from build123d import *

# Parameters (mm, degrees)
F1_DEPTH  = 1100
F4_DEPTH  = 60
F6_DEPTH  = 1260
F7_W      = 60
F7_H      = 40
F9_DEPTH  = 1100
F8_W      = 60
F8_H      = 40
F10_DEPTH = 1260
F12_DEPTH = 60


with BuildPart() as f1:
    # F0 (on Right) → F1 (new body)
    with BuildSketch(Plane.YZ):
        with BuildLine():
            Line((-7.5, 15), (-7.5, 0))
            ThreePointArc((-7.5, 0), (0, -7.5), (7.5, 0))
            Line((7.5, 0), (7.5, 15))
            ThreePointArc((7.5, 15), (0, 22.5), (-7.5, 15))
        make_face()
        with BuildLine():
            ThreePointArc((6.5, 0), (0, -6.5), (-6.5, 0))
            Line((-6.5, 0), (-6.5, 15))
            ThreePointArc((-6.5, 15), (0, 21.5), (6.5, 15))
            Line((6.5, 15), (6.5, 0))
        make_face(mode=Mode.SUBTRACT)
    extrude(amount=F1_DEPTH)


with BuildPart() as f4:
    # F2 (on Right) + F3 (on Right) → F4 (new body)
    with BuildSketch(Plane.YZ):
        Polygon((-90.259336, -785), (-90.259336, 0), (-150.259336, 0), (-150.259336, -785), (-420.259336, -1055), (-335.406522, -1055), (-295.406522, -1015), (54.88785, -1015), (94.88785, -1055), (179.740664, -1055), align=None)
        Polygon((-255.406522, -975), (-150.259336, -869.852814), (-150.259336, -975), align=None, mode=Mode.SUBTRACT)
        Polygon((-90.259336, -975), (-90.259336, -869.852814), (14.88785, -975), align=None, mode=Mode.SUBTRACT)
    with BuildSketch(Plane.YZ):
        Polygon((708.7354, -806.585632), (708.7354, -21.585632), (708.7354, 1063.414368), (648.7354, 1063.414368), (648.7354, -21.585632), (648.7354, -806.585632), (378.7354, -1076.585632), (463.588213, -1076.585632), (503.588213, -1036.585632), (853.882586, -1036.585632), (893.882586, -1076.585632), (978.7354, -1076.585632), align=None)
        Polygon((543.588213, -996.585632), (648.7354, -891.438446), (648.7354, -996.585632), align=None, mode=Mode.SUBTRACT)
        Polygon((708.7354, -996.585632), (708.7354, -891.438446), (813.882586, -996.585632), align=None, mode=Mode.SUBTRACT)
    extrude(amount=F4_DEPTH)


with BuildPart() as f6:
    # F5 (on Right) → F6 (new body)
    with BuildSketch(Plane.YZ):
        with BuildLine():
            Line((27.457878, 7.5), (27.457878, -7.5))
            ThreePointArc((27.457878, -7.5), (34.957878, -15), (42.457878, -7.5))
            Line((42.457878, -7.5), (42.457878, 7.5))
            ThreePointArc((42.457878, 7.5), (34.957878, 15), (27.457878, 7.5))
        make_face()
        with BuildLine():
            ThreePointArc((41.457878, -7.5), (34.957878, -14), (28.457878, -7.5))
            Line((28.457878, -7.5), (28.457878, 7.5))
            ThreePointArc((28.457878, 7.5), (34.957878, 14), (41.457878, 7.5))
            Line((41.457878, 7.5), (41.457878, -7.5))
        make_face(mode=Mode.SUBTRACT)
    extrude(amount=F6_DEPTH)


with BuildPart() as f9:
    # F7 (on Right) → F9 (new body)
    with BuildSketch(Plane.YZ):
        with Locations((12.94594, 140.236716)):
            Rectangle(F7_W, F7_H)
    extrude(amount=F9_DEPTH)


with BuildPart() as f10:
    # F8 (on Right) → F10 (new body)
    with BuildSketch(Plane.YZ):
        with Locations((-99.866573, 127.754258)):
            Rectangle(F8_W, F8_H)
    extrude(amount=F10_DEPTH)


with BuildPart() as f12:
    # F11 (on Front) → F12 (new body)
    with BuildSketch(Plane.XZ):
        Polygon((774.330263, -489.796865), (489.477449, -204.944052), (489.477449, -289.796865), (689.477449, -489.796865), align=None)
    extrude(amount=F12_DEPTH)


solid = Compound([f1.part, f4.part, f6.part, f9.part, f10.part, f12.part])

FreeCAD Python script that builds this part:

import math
import FreeCAD as App
import Part
import Sketcher

doc = App.newDocument("Part")
body = doc.addObject("PartDesign::Body", "Body")

# Sketch on YZ plane
sketch1 = body.newObject("Sketcher::SketchObject", "Sketch")
sketch1.AttachmentSupport = (doc.getObject("YZ_Plane"), [""])
sketch1.MapMode = "FlatFace"
sketch1.addGeometry([
    Part.LineSegment(App.Vector(-8, 15, 0), App.Vector(-8, 0, 0)),  # 0
    Part.ArcOfCircle(Part.Circle(App.Vector(0, 0, 0), App.Vector(0, 0, 1), 8), math.radians(180), math.radians(360)),  # 1
    Part.LineSegment(App.Vector(8, 0, 0), App.Vector(8, 15, 0)),  # 2
    Part.ArcOfCircle(Part.Circle(App.Vector(0, 15, 0), App.Vector(0, 0, 1), 8), math.radians(0), math.radians(180)),  # 3
    Part.LineSegment(App.Vector(6, 15, 0), App.Vector(6, 0, 0)),  # 4
    Part.ArcOfCircle(Part.Circle(App.Vector(0, 0, 0), App.Vector(0, 0, 1), 6), math.radians(180), math.radians(360)),  # 5
    Part.LineSegment(App.Vector(-6, 0, 0), App.Vector(-6, 15, 0)),  # 6
    Part.ArcOfCircle(Part.Circle(App.Vector(0, 15, 0), App.Vector(0, 0, 1), 6), math.radians(0), math.radians(180)),  # 7
], False)
sketch1.addConstraint([
    Sketcher.Constraint("Tangent", 0, 2, 1, 1),
    Sketcher.Constraint("Tangent", 1, 2, 2, 1),
    Sketcher.Constraint("Tangent", 2, 2, 3, 1),
    Sketcher.Constraint("Tangent", 3, 2, 0, 1),
    Sketcher.Constraint("Tangent", 4, 2, 5, 2),
    Sketcher.Constraint("Tangent", 5, 1, 6, 1),
    Sketcher.Constraint("Tangent", 6, 2, 7, 2),
    Sketcher.Constraint("Tangent", 7, 1, 4, 1),
    Sketcher.Constraint("Vertical", 0),
    Sketcher.Constraint("Vertical", 2),
    Sketcher.Constraint("Vertical", 4),
    Sketcher.Constraint("Vertical", 6),
    Sketcher.Constraint("Coincident", 1, 3, -1, 1),
    Sketcher.Constraint("Coincident", 5, 3, -1, 1),
    Sketcher.Constraint("Horizontal", 7, 3, 2, 2),
    Sketcher.Constraint("Radius", 1, 7.5),
    Sketcher.Constraint("Radius", 5, 6.5),
    Sketcher.Constraint("DistanceY", 0, 2, 0, 1, 15.0),
])
pad1 = body.newObject("PartDesign::Pad", "Pad")
pad1.Profile = sketch1
pad1.Length = 1100
body2 = doc.addObject("PartDesign::Body", "Body001")
body2.AllowCompound = True

# Sketch on YZ plane
sketch2 = body2.newObject("Sketcher::SketchObject", "Sketch001")
sketch2.AttachmentSupport = (doc.getObject("YZ_Plane001"), [""])
sketch2.MapMode = "FlatFace"
sketch2.addGeometry([
    Part.LineSegment(App.Vector(-90, -785, 0), App.Vector(-90, 0, 0)),  # 0
    Part.LineSegment(App.Vector(-90, 0, 0), App.Vector(-150, 0, 0)),  # 1
    Part.LineSegment(App.Vector(-150, 0, 0), App.Vector(-150, -785, 0)),  # 2
    Part.LineSegment(App.Vector(-150, -785, 0), App.Vector(-420, -1055, 0)),  # 3
    Part.LineSegment(App.Vector(-420, -1055, 0), App.Vector(-335, -1055, 0)),  # 4
    Part.LineSegment(App.Vector(-335, -1055, 0), App.Vector(-295, -1015, 0)),  # 5
    Part.LineSegment(App.Vector(-295, -1015, 0), App.Vector(55, -1015, 0)),  # 6
    Part.LineSegment(App.Vector(55, -1015, 0), App.Vector(95, -1055, 0)),  # 7
    Part.LineSegment(App.Vector(95, -1055, 0), App.Vector(180, -1055, 0)),  # 8
    Part.LineSegment(App.Vector(180, -1055, 0), App.Vector(-90, -785, 0)),  # 9
    Part.LineSegment(App.Vector(-150, -975, 0), App.Vector(-255, -975, 0)),  # 10
    Part.LineSegment(App.Vector(-255, -975, 0), App.Vector(-150, -870, 0)),  # 11
    Part.LineSegment(App.Vector(-150, -870, 0), App.Vector(-150, -975, 0)),  # 12
    Part.LineSegment(App.Vector(15, -975, 0), App.Vector(-90, -975, 0)),  # 13
    Part.LineSegment(App.Vector(-90, -975, 0), App.Vector(-90, -870, 0)),  # 14
    Part.LineSegment(App.Vector(-90, -870, 0), App.Vector(15, -975, 0)),  # 15
    Part.LineSegment(App.Vector(709, -807, 0), App.Vector(709, 1063, 0)),  # 16
    Part.LineSegment(App.Vector(709, 1063, 0), App.Vector(649, 1063, 0)),  # 17
    Part.LineSegment(App.Vector(649, 1063, 0), App.Vector(649, -807, 0)),  # 18
    Part.LineSegment(App.Vector(649, -807, 0), App.Vector(379, -1077, 0)),  # 19
    Part.LineSegment(App.Vector(379, -1077, 0), App.Vector(464, -1077, 0)),  # 20
    Part.LineSegment(App.Vector(464, -1077, 0), App.Vector(504, -1037, 0)),  # 21
    Part.LineSegment(App.Vector(504, -1037, 0), App.Vector(854, -1037, 0)),  # 22
    Part.LineSegment(App.Vector(854, -1037, 0), App.Vector(894, -1077, 0)),  # 23
    Part.LineSegment(App.Vector(894, -1077, 0), App.Vector(979, -1077, 0)),  # 24
    Part.LineSegment(App.Vector(979, -1077, 0), App.Vector(709, -807, 0)),  # 25
    Part.LineSegment(App.Vector(649, -997, 0), App.Vector(544, -997, 0)),  # 26
    Part.LineSegment(App.Vector(544, -997, 0), App.Vector(649, -891, 0)),  # 27
    Part.LineSegment(App.Vector(649, -891, 0), App.Vector(649, -997, 0)),  # 28
    Part.LineSegment(App.Vector(814, -997, 0), App.Vector(709, -997, 0)),  # 29
    Part.LineSegment(App.Vector(709, -997, 0), App.Vector(709, -891, 0)),  # 30
    Part.LineSegment(App.Vector(709, -891, 0), App.Vector(814, -997, 0)),  # 31
], False)
sketch2.addConstraint([
    Sketcher.Constraint("Coincident", 0, 2, 1, 1),
    Sketcher.Constraint("Coincident", 1, 2, 2, 1),
    Sketcher.Constraint("Coincident", 2, 2, 3, 1),
    Sketcher.Constraint("Coincident", 3, 2, 4, 1),
    Sketcher.Constraint("Coincident", 4, 2, 5, 1),
    Sketcher.Constraint("Coincident", 5, 2, 6, 1),
    Sketcher.Constraint("Coincident", 6, 2, 7, 1),
    Sketcher.Constraint("Coincident", 7, 2, 8, 1),
    Sketcher.Constraint("Coincident", 8, 2, 9, 1),
    Sketcher.Constraint("Coincident", 9, 2, 0, 1),
    Sketcher.Constraint("Coincident", 10, 2, 11, 1),
    Sketcher.Constraint("Coincident", 11, 2, 12, 1),
    Sketcher.Constraint("Coincident", 12, 2, 10, 1),
    Sketcher.Constraint("Coincident", 13, 2, 14, 1),
    Sketcher.Constraint("Coincident", 14, 2, 15, 1),
    Sketcher.Constraint("Coincident", 15, 2, 13, 1),
    Sketcher.Constraint("Coincident", 16, 2, 17, 1),
    Sketcher.Constraint("Coincident", 17, 2, 18, 1),
    Sketcher.Constraint("Coincident", 18, 2, 19, 1),
    Sketcher.Constraint("Coincident", 19, 2, 20, 1),
    Sketcher.Constraint("Coincident", 20, 2, 21, 1),
    Sketcher.Constraint("Coincident", 21, 2, 22, 1),
    Sketcher.Constraint("Coincident", 22, 2, 23, 1),
    Sketcher.Constraint("Coincident", 23, 2, 24, 1),
    Sketcher.Constraint("Coincident", 24, 2, 25, 1),
    Sketcher.Constraint("Coincident", 25, 2, 16, 1),
    Sketcher.Constraint("Coincident", 26, 2, 27, 1),
    Sketcher.Constraint("Coincident", 27, 2, 28, 1),
    Sketcher.Constraint("Coincident", 28, 2, 26, 1),
    Sketcher.Constraint("Coincident", 29, 2, 30, 1),
    Sketcher.Constraint("Coincident", 30, 2, 31, 1),
    Sketcher.Constraint("Coincident", 31, 2, 29, 1),
    Sketcher.Constraint("Vertical", 0),
    Sketcher.Constraint("Horizontal", 1),
    Sketcher.Constraint("Vertical", 2),
    Sketcher.Constraint("Horizontal", 4),
    Sketcher.Constraint("Horizontal", 6),
    Sketcher.Constraint("Horizontal", 8),
    Sketcher.Constraint("Horizontal", 10),
    Sketcher.Constraint("Vertical", 12),
    Sketcher.Constraint("Horizontal", 13),
    Sketcher.Constraint("Vertical", 14),
    Sketcher.Constraint("Vertical", 16),
    Sketcher.Constraint("Horizontal", 17),
    Sketcher.Constraint("Vertical", 18),
    Sketcher.Constraint("Horizontal", 20),
    Sketcher.Constraint("Horizontal", 22),
    Sketcher.Constraint("Horizontal", 24),
    Sketcher.Constraint("Horizontal", 26),
    Sketcher.Constraint("Vertical", 28),
    Sketcher.Constraint("Horizontal", 29),
    Sketcher.Constraint("Vertical", 30),
    Sketcher.Constraint("PointOnObject", 0, 2, -1),
    Sketcher.Constraint("Parallel", 3, 5),
    Sketcher.Constraint("Perpendicular", 5, 7),
    Sketcher.Constraint("Parallel", 7, 9),
    Sketcher.Constraint("Perpendicular", 9, 11),
    Sketcher.Constraint("Perpendicular", 11, 15),
    Sketcher.Constraint("Perpendicular", 15, 19),
    Sketcher.Constraint("Parallel", 19, 21),
    Sketcher.Constraint("Perpendicular", 21, 23),
    Sketcher.Constraint("Parallel", 23, 25),
    Sketcher.Constraint("Perpendicular", 25, 27),
    Sketcher.Constraint("Perpendicular", 27, 31),
    Sketcher.Constraint("Horizontal", 4, 2, 7, 2),
    Sketcher.Constraint("Horizontal", 2, 2, 9, 2),
    Sketcher.Constraint("Horizontal", 12, 2, 13, 2),
    Sketcher.Constraint("Horizontal", 11, 2, 14, 2),
    Sketcher.Constraint("Horizontal", 20, 2, 23, 2),
    Sketcher.Constraint("Horizontal", 18, 2, 25, 2),
    Sketcher.Constraint("Horizontal", 28, 2, 29, 2),
    Sketcher.Constraint("Horizontal", 27, 2, 30, 2),
    Sketcher.Constraint("Vertical", 2, 2, 11, 2),
    Sketcher.Constraint("Vertical", 9, 2, 13, 2),
    Sketcher.Constraint("Vertical", 18, 2, 27, 2),
    Sketcher.Constraint("Vertical", 25, 2, 29, 2),
    Sketcher.Constraint("Equal", 4, 8),
    Sketcher.Constraint("Equal", 10, 13),
    Sketcher.Constraint("Equal", 1, 17),
    Sketcher.Constraint("Equal", 8, 20),
    Sketcher.Constraint("Equal", 6, 22),
    Sketcher.Constraint("Equal", 20, 24),
    Sketcher.Constraint("Equal", 13, 26),
    Sketcher.Constraint("Equal", 9, 19),
    Sketcher.Constraint("DistanceX", 1, 2, 1, 1, 60.0),
    Sketcher.Constraint("DistanceY", 0, 1, 0, 2, 785.0),
    Sketcher.Constraint("DistanceY", 16, 1, 16, 2, 1870.0),
    Sketcher.Constraint("DistanceY", 3, 2, -1, 1, 1055.0),
    Sketcher.Constraint("DistanceY", 5, 2, -1, 1, 1015.0),
    Sketcher.Constraint("DistanceY", 10, 2, -1, 1, 975.0),
    Sketcher.Constraint("DistanceX", 5, 2, 10, 2, 40.0),
    Sketcher.Constraint("DistanceY", 21, 2, 26, 2, 40.0),
    Sketcher.Constraint("DistanceX", 6, 1, 6, 2, 350.294372),
    Sketcher.Constraint("DistanceX", -1, 1, 16, 2, 708.7354),
    Sketcher.Constraint("DistanceX", 4, 2, -1, 1, 335.406522),
    Sketcher.Constraint("DistanceY", -1, 1, 16, 2, 1063.414368),
])
pad2 = body2.newObject("PartDesign::Pad", "Pad001")
pad2.Profile = sketch2
pad2.Length = 60
body3 = doc.addObject("PartDesign::Body", "Body002")

# Sketch on YZ plane
sketch3 = body3.newObject("Sketcher::SketchObject", "Sketch002")
sketch3.AttachmentSupport = (doc.getObject("YZ_Plane002"), [""])
sketch3.MapMode = "FlatFace"
sketch3.addGeometry([
    Part.LineSegment(App.Vector(27, 8, 0), App.Vector(27, -8, 0)),  # 0
    Part.ArcOfCircle(Part.Circle(App.Vector(35, -8, 0), App.Vector(0, 0, 1), 8), math.radians(180), math.radians(360)),  # 1
    Part.LineSegment(App.Vector(42, -8, 0), App.Vector(42, 8, 0)),  # 2
    Part.ArcOfCircle(Part.Circle(App.Vector(35, 8, 0), App.Vector(0, 0, 1), 8), math.radians(0), math.radians(180)),  # 3
    Part.LineSegment(App.Vector(41, 8, 0), App.Vector(41, -8, 0)),  # 4
    Part.ArcOfCircle(Part.Circle(App.Vector(35, -8, 0), App.Vector(0, 0, 1), 6), math.radians(180), math.radians(360)),  # 5
    Part.LineSegment(App.Vector(28, -8, 0), App.Vector(28, 8, 0)),  # 6
    Part.ArcOfCircle(Part.Circle(App.Vector(35, 8, 0), App.Vector(0, 0, 1), 6), math.radians(0), math.radians(180)),  # 7
], False)
sketch3.addConstraint([
    Sketcher.Constraint("Tangent", 0, 2, 1, 1),
    Sketcher.Constraint("Tangent", 1, 2, 2, 1),
    Sketcher.Constraint("Tangent", 2, 2, 3, 1),
    Sketcher.Constraint("Tangent", 3, 2, 0, 1),
    Sketcher.Constraint("Tangent", 4, 2, 5, 2),
    Sketcher.Constraint("Tangent", 5, 1, 6, 1),
    Sketcher.Constraint("Tangent", 6, 2, 7, 2),
    Sketcher.Constraint("Tangent", 7, 1, 4, 1),
    Sketcher.Constraint("Vertical", 0),
    Sketcher.Constraint("Vertical", 2),
    Sketcher.Constraint("Vertical", 4),
    Sketcher.Constraint("Vertical", 6),
    Sketcher.Constraint("Coincident", 5, 3, 1, 3),
    Sketcher.Constraint("Horizontal", 7, 3, 2, 2),
    Sketcher.Constraint("Radius", 1, 7.5),
    Sketcher.Constraint("Radius", 5, 6.5),
    Sketcher.Constraint("DistanceY", 0, 2, 0, 1, 15.0),
    Sketcher.Constraint("DistanceY", 1, 3, -1, 1, 7.5),
    Sketcher.Constraint("DistanceX", -1, 1, 0, 2, 27.457878),
])
pad3 = body3.newObject("PartDesign::Pad", "Pad002")
pad3.Profile = sketch3
pad3.Length = 1260
body4 = doc.addObject("PartDesign::Body", "Body003")

# Sketch on YZ plane
sketch4 = body4.newObject("Sketcher::SketchObject", "Sketch003")
sketch4.AttachmentSupport = (doc.getObject("YZ_Plane003"), [""])
sketch4.MapMode = "FlatFace"
sketch4.addGeometry([
    Part.LineSegment(App.Vector(-17, 160, 0), App.Vector(-17, 120, 0)),
    Part.LineSegment(App.Vector(-17, 120, 0), App.Vector(43, 120, 0)),
    Part.LineSegment(App.Vector(43, 120, 0), App.Vector(43, 160, 0)),
    Part.LineSegment(App.Vector(43, 160, 0), App.Vector(-17, 160, 0)),
], False)
sketch4.addConstraint([
    Sketcher.Constraint("Coincident", 0, 2, 1, 1),
    Sketcher.Constraint("Coincident", 1, 2, 2, 1),
    Sketcher.Constraint("Coincident", 2, 2, 3, 1),
    Sketcher.Constraint("Coincident", 3, 2, 0, 1),
    Sketcher.Constraint("Vertical", 0),
    Sketcher.Constraint("Horizontal", 1),
    Sketcher.Constraint("Vertical", 2),
    Sketcher.Constraint("Horizontal", 3),
    Sketcher.Constraint("DistanceX", 1, 1, 1, 2, 60.0),
    Sketcher.Constraint("DistanceY", 0, 2, 0, 1, 40.0),
    Sketcher.Constraint("DistanceX", 0, 2, -1, 1, 17.05406),
    Sketcher.Constraint("DistanceY", -1, 1, 0, 2, 120.236716),
])
pad4 = body4.newObject("PartDesign::Pad", "Pad003")
pad4.Profile = sketch4
pad4.Length = 1100
body5 = doc.addObject("PartDesign::Body", "Body004")

# Sketch on YZ plane
sketch5 = body5.newObject("Sketcher::SketchObject", "Sketch004")
sketch5.AttachmentSupport = (doc.getObject("YZ_Plane004"), [""])
sketch5.MapMode = "FlatFace"
sketch5.addGeometry([
    Part.LineSegment(App.Vector(-130, 148, 0), App.Vector(-130, 108, 0)),
    Part.LineSegment(App.Vector(-130, 108, 0), App.Vector(-70, 108, 0)),
    Part.LineSegment(App.Vector(-70, 108, 0), App.Vector(-70, 148, 0)),
    Part.LineSegment(App.Vector(-70, 148, 0), App.Vector(-130, 148, 0)),
], False)
sketch5.addConstraint([
    Sketcher.Constraint("Coincident", 0, 2, 1, 1),
    Sketcher.Constraint("Coincident", 1, 2, 2, 1),
    Sketcher.Constraint("Coincident", 2, 2, 3, 1),
    Sketcher.Constraint("Coincident", 3, 2, 0, 1),
    Sketcher.Constraint("Vertical", 0),
    Sketcher.Constraint("Horizontal", 1),
    Sketcher.Constraint("Vertical", 2),
    Sketcher.Constraint("Horizontal", 3),
    Sketcher.Constraint("DistanceX", 1, 1, 1, 2, 60.0),
    Sketcher.Constraint("DistanceY", 0, 2, 0, 1, 40.0),
    Sketcher.Constraint("DistanceY", -1, 1, 2, 2, 147.754258),
    Sketcher.Constraint("DistanceX", 0, 2, -1, 1, 129.866573),
])
pad5 = body5.newObject("PartDesign::Pad", "Pad004")
pad5.Profile = sketch5
pad5.Length = 1260
body6 = doc.addObject("PartDesign::Body", "Body005")

# Sketch on XZ plane
sketch6 = body6.newObject("Sketcher::SketchObject", "Sketch005")
sketch6.AttachmentSupport = (doc.getObject("XZ_Plane005"), [""])
sketch6.MapMode = "FlatFace"
sketch6.addGeometry([
    Part.LineSegment(App.Vector(774, -490, 0), App.Vector(489, -205, 0)),
    Part.LineSegment(App.Vector(489, -205, 0), App.Vector(489, -290, 0)),
    Part.LineSegment(App.Vector(489, -290, 0), App.Vector(689, -490, 0)),
    Part.LineSegment(App.Vector(689, -490, 0), App.Vector(774, -490, 0)),
], False)
sketch6.addConstraint([
    Sketcher.Constraint("Coincident", 0, 2, 1, 1),
    Sketcher.Constraint("Coincident", 1, 2, 2, 1),
    Sketcher.Constraint("Coincident", 2, 2, 3, 1),
    Sketcher.Constraint("Coincident", 3, 2, 0, 1),
    Sketcher.Constraint("Vertical", 1),
    Sketcher.Constraint("Horizontal", 3),
    Sketcher.Constraint("Parallel", 0, 2),
    Sketcher.Constraint("Equal", 3, 1),
    Sketcher.Constraint("DistanceX", 1, 2, 2, 2, 200.0),
    Sketcher.Constraint("DistanceX", 3, 1, 3, 2, 84.852814),
    Sketcher.Constraint("DistanceX", -1, 1, 0, 2, 489.477449),
    Sketcher.Constraint("DistanceY", 0, 2, -1, 1, 204.944052),
])
pad6 = body6.newObject("PartDesign::Pad", "Pad005")
pad6.Profile = sketch6
pad6.Length = 60

doc.recompute()
